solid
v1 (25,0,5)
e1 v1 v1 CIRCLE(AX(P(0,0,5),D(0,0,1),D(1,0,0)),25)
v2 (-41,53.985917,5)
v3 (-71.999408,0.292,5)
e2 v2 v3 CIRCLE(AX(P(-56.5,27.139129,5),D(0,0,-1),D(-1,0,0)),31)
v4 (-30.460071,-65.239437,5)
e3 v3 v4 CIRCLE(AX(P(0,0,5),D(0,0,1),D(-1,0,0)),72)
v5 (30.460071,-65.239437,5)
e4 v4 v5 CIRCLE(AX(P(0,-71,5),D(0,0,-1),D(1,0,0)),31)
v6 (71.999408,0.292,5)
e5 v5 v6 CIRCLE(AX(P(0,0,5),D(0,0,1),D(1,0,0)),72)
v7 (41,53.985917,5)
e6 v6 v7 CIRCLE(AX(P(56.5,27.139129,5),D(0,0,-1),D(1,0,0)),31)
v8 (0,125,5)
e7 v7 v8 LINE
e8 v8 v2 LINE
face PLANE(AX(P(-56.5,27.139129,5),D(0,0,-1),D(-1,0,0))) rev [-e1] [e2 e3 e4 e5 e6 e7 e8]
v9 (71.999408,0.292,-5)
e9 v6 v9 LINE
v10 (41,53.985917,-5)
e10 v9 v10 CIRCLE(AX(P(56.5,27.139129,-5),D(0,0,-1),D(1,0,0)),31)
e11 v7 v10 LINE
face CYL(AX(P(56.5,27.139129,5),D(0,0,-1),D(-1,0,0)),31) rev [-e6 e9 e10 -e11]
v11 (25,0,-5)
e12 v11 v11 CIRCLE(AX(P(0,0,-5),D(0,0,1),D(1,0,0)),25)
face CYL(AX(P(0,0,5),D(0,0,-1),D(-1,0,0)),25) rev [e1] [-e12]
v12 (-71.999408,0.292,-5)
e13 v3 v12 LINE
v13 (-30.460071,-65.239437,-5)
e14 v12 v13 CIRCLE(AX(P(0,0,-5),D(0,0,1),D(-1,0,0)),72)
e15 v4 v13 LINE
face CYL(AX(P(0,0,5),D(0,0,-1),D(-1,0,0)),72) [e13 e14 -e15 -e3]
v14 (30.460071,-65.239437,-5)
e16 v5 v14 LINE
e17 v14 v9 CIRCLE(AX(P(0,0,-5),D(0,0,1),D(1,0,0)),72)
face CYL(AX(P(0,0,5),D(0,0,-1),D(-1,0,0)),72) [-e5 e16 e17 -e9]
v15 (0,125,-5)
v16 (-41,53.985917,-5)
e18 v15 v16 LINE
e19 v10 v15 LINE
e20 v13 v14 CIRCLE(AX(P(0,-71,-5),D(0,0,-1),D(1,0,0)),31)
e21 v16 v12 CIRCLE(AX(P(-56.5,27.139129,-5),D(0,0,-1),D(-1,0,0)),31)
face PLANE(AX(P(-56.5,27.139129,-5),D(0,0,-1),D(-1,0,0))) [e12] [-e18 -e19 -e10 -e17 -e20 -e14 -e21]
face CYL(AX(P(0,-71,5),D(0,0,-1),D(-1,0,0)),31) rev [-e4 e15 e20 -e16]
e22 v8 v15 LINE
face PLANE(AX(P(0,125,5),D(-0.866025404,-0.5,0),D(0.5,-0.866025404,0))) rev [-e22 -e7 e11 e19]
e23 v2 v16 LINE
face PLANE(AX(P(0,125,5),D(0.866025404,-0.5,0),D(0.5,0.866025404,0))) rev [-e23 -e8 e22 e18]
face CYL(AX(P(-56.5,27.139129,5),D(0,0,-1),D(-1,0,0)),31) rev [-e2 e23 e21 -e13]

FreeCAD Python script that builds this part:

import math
import FreeCAD as App
import Part
import Sketcher
Q = App.Units.Quantity

doc = App.newDocument("Part")
params = doc.addObject("Spreadsheet::Sheet", "Params")
for row, (alias, value) in enumerate([
    ("sketch1_diameter", "50 mm"),
    ("sketch1_radius", "31 mm"),
    ("sketch1_radius2", "72 mm"),
    ("sketch1_length", "82 mm"),
    ("pad1_length", "10 mm"),
], start=1):
    params.set(f"A{row}", alias)
    params.set(f"B{row}", "=" + value)
    params.setAlias(f"B{row}", alias)

body = doc.addObject("PartDesign::Body", "Body")

sketch1 = body.newObject("Sketcher::SketchObject", "Sketch")
sketch1.AttachmentSupport = (doc.getObject("XY_Plane"), [""])
sketch1.MapMode = "FlatFace"
sketch1.addGeometry(Part.LineSegment(App.Vector(41, 54, 0), App.Vector(0, 125, 0)), False)
sketch1.addGeometry(Part.LineSegment(App.Vector(0, 125, 0), App.Vector(-41, 54, 0)), False)
sketch1.addGeometry(Part.ArcOfCircle(Part.Circle(App.Vector(-56, 27, 0), App.Vector(0, 0, 1), 31), math.radians(-120), math.radians(60)), False)
sketch1.addGeometry(Part.ArcOfCircle(Part.Circle(App.Vector(0, 0, 0), App.Vector(0, 0, 1), 72), math.radians(180), math.radians(245)), False)
sketch1.addGeometry(Part.ArcOfCircle(Part.Circle(App.Vector(0, -71, 0), App.Vector(0, 0, 1), 31), math.radians(11), math.radians(169)), False)
sketch1.addGeometry(Part.ArcOfCircle(Part.Circle(App.Vector(0, 0, 0), App.Vector(0, 0, 1), 72), math.radians(-65), math.radians(0)), False)
sketch1.addGeometry(Part.ArcOfCircle(Part.Circle(App.Vector(56, 27, 0), App.Vector(0, 0, 1), 31), math.radians(120), math.radians(300)), False)
sketch1.addGeometry(Part.Circle(App.Vector(0, 0, 0), App.Vector(0, 0, 1), 25), False)
sketch1.addConstraint(Sketcher.Constraint("Coincident", 0, 2, 1, 1))
sketch1.addConstraint(Sketcher.Constraint("Coincident", 1, 2, 2, 2))
sketch1.addConstraint(Sketcher.Constraint("Coincident", 2, 1, 3, 1))
sketch1.addConstraint(Sketcher.Constraint("Coincident", 3, 2, 4, 2))
sketch1.addConstraint(Sketcher.Constraint("Coincident", 4, 1, 5, 1))
sketch1.addConstraint(Sketcher.Constraint("Coincident", 5, 2, 6, 2))
sketch1.addConstraint(Sketcher.Constraint("Coincident", 6, 1, 0, 1))
sketch1.addConstraint(Sketcher.Constraint("Coincident", 3, 3, -1, 1))
sketch1.addConstraint(Sketcher.Constraint("Coincident", 5, 3, -1, 1))
sketch1.addConstraint(Sketcher.Constraint("Coincident", 7, 3, -1, 1))
sketch1.addConstraint(Sketcher.Constraint("Equal", 2, 4))
sketch1.addConstraint(Sketcher.Constraint("Equal", 3, 5))
sketch1.addConstraint(Sketcher.Constraint("Equal", 4, 6))
sketch1.addConstraint(Sketcher.Constraint("Symmetric", 2, 3, 6, 3, -2))
sketch1.addConstraint(Sketcher.Constraint("PointOnObject", 4, 3, -2))
sketch1.addConstraint(Sketcher.Constraint("PointOnObject", 0, 2, -2))
sketch1.addConstraint(Sketcher.Constraint("Horizontal", 1, 2, 6, 1))
sketch1.addConstraint(Sketcher.Constraint("Diameter", 7, 50.0))
sketch1.addConstraint(Sketcher.Constraint("Radius", 2, 31.0))
sketch1.addConstraint(Sketcher.Constraint("Radius", 3, 72.0))
sketch1.addConstraint(Sketcher.Constraint("Angle", 0, Q("120 deg")))
sketch1.addConstraint(Sketcher.Constraint("Distance", 0, 82.0))
sketch1.addConstraint(Sketcher.Constraint("DistanceY", 4, 3, -1, 1, 71.0))
sketch1.addConstraint(Sketcher.Constraint("DistanceY", -1, 1, 0, 2, 125.0))
sketch1.addConstraint(Sketcher.Constraint("DistanceX", 2, 3, 6, 3, 113.0))
sketch1.setExpression("Constraints[17]", "Params.sketch1_diameter")
sketch1.setExpression("Constraints[18]", "Params.sketch1_radius")
sketch1.setExpression("Constraints[19]", "Params.sketch1_radius2")
sketch1.setExpression("Constraints[21]", "Params.sketch1_length")
pad1 = body.newObject("PartDesign::Pad", "Pad")
pad1.Profile = sketch1
pad1.setExpression("Length", "Params.pad1_length")
pad1.Midplane = True

doc.recompute()
